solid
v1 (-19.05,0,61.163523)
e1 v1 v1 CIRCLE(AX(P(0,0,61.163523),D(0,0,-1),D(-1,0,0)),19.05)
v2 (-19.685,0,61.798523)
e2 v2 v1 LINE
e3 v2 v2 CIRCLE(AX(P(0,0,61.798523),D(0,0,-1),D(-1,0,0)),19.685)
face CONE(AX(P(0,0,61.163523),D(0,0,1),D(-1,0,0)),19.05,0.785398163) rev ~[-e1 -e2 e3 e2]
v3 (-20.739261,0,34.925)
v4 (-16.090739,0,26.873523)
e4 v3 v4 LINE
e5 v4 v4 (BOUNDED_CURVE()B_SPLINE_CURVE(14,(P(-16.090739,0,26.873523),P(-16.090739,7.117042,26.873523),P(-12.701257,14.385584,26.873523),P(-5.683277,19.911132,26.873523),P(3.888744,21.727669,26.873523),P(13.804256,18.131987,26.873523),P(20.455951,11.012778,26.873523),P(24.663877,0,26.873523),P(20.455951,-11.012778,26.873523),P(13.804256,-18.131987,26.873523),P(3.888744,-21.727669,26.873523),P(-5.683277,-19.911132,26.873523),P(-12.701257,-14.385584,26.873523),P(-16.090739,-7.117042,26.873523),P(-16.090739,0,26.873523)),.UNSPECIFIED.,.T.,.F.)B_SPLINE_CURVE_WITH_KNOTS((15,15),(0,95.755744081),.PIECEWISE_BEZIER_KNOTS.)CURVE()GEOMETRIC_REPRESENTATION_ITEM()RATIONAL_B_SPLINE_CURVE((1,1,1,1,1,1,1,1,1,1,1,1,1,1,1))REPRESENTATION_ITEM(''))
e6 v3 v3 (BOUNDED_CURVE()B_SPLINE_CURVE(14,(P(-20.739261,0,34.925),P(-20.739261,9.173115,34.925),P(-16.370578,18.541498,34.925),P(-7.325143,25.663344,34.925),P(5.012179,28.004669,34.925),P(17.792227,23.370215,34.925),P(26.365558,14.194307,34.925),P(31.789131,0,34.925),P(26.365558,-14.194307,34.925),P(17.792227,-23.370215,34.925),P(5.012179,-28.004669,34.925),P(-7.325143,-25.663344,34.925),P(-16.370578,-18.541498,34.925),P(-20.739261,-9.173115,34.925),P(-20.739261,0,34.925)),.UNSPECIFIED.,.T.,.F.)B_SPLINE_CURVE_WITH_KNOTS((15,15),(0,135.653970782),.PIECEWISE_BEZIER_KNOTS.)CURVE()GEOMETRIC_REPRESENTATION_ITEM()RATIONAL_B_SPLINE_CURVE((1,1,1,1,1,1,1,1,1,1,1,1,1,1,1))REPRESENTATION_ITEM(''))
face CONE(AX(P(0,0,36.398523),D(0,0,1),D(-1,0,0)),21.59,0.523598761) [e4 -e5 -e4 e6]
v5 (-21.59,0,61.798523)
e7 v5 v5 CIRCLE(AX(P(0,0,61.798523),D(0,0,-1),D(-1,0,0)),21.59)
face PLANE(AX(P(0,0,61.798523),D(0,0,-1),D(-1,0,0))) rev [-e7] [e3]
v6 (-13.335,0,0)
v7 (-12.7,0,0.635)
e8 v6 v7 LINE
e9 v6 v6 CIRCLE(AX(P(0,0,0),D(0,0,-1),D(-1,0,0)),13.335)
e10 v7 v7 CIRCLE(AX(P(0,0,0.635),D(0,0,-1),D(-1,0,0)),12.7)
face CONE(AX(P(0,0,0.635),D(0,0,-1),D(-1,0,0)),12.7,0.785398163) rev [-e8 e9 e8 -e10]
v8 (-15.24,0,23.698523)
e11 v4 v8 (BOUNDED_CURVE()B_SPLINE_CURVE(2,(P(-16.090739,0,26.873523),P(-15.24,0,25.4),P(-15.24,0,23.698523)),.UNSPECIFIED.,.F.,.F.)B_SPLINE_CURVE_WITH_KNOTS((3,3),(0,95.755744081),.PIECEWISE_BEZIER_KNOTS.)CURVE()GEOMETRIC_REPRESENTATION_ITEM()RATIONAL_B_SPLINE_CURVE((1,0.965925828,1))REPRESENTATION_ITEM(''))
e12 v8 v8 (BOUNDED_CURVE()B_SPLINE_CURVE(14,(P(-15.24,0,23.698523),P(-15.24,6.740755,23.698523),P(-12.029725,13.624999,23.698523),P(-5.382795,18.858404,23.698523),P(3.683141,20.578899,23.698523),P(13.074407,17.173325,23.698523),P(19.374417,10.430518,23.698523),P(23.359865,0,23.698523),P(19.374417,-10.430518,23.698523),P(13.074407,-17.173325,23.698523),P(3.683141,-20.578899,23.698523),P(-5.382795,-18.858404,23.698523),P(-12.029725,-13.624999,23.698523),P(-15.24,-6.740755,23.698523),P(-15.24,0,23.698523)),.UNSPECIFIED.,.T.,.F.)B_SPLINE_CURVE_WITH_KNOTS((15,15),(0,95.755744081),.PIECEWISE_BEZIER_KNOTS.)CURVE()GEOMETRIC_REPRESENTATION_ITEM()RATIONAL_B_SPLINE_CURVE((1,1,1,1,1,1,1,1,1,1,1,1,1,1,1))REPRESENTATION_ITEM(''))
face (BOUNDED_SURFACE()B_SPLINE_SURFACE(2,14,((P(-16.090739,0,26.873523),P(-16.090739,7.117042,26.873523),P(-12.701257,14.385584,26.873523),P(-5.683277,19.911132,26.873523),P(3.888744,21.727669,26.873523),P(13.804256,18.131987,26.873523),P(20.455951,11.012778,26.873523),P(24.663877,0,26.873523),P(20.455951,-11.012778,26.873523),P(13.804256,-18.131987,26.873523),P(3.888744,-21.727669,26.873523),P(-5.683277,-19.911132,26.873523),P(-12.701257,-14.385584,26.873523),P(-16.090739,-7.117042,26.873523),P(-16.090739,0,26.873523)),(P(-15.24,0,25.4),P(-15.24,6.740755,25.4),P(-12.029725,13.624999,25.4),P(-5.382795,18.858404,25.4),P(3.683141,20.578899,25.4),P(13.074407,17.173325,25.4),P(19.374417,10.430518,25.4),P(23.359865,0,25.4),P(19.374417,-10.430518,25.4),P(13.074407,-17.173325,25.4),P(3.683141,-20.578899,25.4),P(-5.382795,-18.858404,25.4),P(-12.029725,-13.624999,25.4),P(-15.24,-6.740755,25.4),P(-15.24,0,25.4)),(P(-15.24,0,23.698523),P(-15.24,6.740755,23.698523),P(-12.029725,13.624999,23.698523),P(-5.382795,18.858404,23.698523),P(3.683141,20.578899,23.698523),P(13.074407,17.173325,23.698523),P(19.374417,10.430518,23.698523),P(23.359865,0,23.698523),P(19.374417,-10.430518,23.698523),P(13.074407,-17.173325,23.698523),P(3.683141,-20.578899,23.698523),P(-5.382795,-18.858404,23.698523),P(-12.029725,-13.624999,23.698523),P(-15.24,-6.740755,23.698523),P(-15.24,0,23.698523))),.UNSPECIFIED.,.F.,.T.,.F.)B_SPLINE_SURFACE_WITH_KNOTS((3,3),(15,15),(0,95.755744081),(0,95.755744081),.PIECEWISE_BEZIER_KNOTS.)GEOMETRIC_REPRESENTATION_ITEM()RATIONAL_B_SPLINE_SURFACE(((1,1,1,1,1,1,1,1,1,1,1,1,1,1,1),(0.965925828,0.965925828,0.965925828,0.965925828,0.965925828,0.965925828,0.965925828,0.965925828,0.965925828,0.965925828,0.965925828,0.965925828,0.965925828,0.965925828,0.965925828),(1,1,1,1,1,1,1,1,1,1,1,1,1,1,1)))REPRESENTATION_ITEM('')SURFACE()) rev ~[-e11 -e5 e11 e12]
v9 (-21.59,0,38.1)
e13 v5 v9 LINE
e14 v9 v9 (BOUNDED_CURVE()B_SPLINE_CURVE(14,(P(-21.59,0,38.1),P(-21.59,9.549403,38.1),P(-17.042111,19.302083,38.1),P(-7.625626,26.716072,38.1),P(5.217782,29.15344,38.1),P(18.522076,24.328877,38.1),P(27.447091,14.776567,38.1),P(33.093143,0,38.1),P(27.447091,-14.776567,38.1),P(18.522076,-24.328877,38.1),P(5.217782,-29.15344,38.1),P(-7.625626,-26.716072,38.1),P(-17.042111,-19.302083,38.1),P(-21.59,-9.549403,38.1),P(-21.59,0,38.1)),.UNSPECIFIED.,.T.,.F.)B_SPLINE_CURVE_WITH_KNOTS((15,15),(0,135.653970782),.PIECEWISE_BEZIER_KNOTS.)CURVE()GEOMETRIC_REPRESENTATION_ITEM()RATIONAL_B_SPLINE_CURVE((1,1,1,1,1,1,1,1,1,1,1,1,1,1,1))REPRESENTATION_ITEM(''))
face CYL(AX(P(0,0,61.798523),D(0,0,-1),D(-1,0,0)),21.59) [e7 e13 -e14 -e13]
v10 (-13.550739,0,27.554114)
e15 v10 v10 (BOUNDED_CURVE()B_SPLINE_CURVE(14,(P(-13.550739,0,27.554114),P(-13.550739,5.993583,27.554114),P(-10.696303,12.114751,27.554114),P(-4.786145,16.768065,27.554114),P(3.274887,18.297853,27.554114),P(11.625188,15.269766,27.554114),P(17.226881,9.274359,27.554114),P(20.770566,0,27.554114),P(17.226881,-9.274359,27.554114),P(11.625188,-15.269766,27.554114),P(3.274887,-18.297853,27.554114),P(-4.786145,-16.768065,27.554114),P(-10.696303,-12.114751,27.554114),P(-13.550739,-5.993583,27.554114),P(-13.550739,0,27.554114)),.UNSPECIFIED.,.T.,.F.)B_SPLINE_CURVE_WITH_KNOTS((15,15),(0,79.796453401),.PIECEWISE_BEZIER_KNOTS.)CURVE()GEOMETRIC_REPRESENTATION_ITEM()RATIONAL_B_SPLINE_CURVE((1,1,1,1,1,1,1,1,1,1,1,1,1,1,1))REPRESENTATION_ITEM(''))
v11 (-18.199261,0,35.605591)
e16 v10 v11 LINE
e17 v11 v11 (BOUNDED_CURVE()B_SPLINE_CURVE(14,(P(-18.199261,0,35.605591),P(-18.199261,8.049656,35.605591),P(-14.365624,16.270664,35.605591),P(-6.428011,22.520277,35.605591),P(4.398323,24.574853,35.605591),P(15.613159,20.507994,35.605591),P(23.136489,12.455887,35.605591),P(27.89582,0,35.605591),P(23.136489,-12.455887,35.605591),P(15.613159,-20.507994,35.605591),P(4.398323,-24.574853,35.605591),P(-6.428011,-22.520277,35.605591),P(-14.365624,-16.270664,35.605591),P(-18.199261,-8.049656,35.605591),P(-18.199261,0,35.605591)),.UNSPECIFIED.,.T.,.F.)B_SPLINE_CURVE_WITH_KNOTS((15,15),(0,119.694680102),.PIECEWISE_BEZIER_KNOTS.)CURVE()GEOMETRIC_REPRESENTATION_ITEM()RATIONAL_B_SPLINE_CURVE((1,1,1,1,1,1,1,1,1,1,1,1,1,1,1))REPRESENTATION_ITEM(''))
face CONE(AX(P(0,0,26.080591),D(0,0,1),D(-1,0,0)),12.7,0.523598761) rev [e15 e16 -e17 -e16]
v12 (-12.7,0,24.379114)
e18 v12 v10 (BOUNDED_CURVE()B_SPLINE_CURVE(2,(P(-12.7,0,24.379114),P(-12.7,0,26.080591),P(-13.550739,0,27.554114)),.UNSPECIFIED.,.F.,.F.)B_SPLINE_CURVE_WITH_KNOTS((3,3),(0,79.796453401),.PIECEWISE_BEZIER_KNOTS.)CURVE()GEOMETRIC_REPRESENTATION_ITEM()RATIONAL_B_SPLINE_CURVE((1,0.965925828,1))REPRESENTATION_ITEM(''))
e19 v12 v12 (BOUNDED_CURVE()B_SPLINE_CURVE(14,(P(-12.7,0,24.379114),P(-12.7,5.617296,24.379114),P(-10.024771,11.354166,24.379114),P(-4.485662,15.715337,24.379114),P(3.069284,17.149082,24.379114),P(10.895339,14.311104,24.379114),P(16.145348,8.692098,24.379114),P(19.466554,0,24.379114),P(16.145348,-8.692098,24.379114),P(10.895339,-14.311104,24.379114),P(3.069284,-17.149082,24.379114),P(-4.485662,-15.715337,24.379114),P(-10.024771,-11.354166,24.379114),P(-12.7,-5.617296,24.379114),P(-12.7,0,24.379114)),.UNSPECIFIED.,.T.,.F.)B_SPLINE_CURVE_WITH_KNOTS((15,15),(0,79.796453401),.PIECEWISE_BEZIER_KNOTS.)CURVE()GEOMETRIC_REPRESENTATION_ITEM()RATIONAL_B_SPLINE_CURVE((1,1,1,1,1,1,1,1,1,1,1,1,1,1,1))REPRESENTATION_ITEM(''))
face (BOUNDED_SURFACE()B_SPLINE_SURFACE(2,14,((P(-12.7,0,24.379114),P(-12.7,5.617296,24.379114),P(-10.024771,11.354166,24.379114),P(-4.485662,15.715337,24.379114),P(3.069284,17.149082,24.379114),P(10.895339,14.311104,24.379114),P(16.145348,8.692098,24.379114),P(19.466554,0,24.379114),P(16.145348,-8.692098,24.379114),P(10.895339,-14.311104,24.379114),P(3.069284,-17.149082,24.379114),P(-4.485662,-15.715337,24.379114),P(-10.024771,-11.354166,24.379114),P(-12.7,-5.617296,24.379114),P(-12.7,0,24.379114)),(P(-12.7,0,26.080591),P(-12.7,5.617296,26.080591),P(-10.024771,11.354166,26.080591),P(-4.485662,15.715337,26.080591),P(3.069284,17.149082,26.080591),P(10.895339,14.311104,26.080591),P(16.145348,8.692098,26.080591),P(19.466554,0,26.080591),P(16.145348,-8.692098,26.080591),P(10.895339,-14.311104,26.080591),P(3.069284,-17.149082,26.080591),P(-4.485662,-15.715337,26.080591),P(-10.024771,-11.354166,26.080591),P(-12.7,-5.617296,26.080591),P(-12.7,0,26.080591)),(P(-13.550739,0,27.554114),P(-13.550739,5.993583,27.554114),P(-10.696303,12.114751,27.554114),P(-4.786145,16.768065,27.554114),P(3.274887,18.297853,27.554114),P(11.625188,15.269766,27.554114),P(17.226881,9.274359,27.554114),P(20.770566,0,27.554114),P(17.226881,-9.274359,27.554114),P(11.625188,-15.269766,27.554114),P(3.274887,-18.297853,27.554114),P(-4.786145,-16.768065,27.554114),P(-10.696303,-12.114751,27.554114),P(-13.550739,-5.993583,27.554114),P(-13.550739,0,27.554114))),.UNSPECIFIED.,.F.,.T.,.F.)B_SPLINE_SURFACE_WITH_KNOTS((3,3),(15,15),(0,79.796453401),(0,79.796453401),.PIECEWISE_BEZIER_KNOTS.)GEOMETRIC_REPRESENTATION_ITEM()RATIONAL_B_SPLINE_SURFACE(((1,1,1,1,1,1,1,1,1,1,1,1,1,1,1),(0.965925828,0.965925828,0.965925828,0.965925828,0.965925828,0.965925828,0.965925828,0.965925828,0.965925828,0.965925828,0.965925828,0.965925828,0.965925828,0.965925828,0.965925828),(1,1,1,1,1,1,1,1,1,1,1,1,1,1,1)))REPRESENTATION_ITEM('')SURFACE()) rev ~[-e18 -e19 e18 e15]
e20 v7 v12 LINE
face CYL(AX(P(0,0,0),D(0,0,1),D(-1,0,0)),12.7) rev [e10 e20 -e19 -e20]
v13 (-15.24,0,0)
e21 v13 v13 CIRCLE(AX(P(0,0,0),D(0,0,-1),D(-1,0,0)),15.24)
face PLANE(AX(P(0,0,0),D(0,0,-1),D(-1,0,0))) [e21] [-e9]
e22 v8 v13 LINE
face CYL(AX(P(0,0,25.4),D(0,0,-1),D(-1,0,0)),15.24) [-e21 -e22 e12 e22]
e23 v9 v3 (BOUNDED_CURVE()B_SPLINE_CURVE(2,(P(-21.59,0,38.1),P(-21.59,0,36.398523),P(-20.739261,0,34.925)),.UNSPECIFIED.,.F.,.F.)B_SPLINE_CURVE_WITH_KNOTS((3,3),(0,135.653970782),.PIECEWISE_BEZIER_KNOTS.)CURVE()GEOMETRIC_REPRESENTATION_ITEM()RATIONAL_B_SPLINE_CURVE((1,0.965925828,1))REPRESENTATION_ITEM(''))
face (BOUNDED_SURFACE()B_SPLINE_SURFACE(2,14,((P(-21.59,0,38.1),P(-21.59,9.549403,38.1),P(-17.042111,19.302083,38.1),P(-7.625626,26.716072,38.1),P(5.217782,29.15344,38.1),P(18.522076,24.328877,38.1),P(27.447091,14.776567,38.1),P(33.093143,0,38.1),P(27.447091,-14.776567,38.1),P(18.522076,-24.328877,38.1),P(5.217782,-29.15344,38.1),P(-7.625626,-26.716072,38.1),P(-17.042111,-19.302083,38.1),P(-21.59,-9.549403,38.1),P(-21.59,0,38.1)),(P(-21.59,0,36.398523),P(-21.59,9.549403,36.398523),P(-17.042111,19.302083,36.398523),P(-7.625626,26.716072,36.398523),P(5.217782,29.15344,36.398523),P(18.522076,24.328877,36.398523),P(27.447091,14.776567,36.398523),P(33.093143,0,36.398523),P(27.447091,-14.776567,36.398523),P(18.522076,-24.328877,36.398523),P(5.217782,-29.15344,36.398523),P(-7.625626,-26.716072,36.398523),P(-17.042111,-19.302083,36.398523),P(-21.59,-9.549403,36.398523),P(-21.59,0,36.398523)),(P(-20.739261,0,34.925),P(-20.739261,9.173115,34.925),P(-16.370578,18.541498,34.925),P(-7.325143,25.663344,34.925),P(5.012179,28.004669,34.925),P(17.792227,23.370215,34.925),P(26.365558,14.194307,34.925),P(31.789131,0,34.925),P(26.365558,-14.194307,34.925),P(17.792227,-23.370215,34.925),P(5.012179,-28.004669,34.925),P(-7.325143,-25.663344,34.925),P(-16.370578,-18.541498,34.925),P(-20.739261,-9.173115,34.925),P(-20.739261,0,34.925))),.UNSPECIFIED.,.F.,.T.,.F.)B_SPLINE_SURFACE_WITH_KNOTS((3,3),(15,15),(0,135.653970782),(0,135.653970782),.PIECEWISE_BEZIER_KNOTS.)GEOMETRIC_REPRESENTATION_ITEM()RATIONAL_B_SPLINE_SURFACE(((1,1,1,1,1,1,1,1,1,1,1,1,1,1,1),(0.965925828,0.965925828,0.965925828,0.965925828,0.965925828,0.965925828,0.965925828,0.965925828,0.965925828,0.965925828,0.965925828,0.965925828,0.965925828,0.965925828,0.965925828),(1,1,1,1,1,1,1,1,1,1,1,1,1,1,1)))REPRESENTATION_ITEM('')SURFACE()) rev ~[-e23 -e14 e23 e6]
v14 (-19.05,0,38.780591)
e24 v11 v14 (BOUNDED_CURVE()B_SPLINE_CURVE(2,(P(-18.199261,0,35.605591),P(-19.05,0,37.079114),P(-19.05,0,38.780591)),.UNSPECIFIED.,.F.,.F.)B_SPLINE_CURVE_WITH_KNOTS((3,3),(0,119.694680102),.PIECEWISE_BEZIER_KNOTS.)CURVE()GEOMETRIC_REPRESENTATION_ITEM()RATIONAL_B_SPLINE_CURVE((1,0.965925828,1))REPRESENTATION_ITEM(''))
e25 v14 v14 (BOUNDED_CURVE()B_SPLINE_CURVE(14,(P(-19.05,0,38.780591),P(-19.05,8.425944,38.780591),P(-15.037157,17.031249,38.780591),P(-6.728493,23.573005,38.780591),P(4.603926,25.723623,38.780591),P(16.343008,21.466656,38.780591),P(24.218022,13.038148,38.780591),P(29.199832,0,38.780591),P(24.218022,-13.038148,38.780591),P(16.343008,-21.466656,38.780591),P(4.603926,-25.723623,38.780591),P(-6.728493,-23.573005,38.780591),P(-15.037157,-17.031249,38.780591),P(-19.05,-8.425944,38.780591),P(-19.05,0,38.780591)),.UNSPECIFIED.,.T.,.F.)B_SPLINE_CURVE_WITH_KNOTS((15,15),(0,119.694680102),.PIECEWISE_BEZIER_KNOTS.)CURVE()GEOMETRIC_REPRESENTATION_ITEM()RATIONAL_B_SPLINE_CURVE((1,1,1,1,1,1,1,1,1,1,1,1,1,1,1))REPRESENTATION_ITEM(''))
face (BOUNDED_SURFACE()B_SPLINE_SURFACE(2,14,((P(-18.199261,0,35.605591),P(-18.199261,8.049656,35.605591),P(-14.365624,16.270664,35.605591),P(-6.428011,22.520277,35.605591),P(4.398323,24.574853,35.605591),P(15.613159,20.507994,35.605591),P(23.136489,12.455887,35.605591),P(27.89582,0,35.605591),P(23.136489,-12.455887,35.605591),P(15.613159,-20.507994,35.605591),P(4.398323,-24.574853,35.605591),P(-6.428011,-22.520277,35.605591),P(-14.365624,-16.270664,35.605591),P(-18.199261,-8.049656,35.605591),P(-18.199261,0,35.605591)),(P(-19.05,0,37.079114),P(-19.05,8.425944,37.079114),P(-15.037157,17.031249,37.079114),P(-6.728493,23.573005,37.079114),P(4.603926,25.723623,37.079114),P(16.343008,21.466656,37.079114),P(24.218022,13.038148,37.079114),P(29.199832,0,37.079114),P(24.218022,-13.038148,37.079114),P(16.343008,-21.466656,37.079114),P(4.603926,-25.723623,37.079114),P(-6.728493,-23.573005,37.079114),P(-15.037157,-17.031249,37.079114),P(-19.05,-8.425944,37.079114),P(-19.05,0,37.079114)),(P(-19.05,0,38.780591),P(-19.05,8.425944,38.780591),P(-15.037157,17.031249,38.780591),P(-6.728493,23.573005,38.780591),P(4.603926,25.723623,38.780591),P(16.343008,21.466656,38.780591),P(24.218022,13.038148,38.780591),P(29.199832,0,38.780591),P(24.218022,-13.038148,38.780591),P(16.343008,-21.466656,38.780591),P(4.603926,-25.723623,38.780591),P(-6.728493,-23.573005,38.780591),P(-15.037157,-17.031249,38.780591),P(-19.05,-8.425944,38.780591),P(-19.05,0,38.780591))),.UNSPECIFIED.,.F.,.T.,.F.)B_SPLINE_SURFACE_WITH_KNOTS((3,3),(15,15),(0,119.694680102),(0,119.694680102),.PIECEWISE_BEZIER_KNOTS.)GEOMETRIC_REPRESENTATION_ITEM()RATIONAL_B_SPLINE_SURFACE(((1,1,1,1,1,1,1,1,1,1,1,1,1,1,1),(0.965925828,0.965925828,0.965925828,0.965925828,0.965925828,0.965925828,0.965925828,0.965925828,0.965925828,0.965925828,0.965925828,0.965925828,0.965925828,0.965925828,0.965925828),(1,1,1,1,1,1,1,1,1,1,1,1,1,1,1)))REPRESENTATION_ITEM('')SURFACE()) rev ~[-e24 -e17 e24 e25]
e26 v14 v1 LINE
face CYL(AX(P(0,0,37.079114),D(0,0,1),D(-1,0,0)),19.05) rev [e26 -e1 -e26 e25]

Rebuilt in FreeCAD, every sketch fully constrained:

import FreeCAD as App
import Part
import Sketcher
from FreeCAD import Vector
Q = App.Units.Quantity


def edges_at(feature, points):
    """Names of the edges that pass closest to the given points."""
    edges = feature.Shape.Edges
    near = lambda p: min(range(len(edges)), key=lambda i: edges[i].distToShape(Part.Vertex(*p))[0])
    return sorted({f"Edge{near(p) + 1}" for p in points})

doc = App.newDocument("Part")
body = doc.addObject("PartDesign::Body", "Body")

sketch1 = body.newObject("Sketcher::SketchObject", "Sketch")
sketch1.AttachmentSupport = (doc.getObject("XZ_Plane"), [""])
sketch1.MapMode = "FlatFace"
sketch1.addGeometry(Part.LineSegment(Vector(-19.1, 61.8, 0), Vector(-21.6, 61.8, 0)), False)
sketch1.addGeometry(Part.LineSegment(Vector(-21.6, 61.8, 0), Vector(-21.6, 36.4, 0)), False)
sketch1.addGeometry(Part.LineSegment(Vector(-21.6, 36.4, 0), Vector(-15.2, 25.4, 0)), False)
sketch1.addGeometry(Part.LineSegment(Vector(-15.2, 25.4, 0), Vector(-15.2, 0, 0)), False)
sketch1.addGeometry(Part.LineSegment(Vector(-15.2, 0, 0), Vector(-12.7, 0, 0)), False)
sketch1.addGeometry(Part.LineSegment(Vector(-12.7, 0, 0), Vector(-12.7, 26.1, 0)), False)
sketch1.addGeometry(Part.LineSegment(Vector(-12.7, 26.1, 0), Vector(-19.1, 37.1, 0)), False)
sketch1.addGeometry(Part.LineSegment(Vector(-19.1, 37.1, 0), Vector(-19.1, 61.8, 0)), False)
sketch1.addConstraint(Sketcher.Constraint("Coincident", 0, 2, 1, 1))
sketch1.addConstraint(Sketcher.Constraint("Coincident", 1, 2, 2, 1))
sketch1.addConstraint(Sketcher.Constraint("Coincident", 2, 2, 3, 1))
sketch1.addConstraint(Sketcher.Constraint("Coincident", 3, 2, 4, 1))
sketch1.addConstraint(Sketcher.Constraint("Coincident", 4, 2, 5, 1))
sketch1.addConstraint(Sketcher.Constraint("Coincident", 5, 2, 6, 1))
sketch1.addConstraint(Sketcher.Constraint("Coincident", 6, 2, 7, 1))
sketch1.addConstraint(Sketcher.Constraint("Coincident", 7, 2, 0, 1))
sketch1.addConstraint(Sketcher.Constraint("Horizontal", 0))
sketch1.addConstraint(Sketcher.Constraint("Vertical", 1))
sketch1.addConstraint(Sketcher.Constraint("Vertical", 3))
sketch1.addConstraint(Sketcher.Constraint("Horizontal", 4))
sketch1.addConstraint(Sketcher.Constraint("Vertical", 5))
sketch1.addConstraint(Sketcher.Constraint("Vertical", 7))
sketch1.addConstraint(Sketcher.Constraint("PointOnObject", 3, 2, -1))
sketch1.addConstraint(Sketcher.Constraint("Parallel", 2, 6))
sketch1.addConstraint(Sketcher.Constraint("Equal", 0, 4))
sketch1.addConstraint(Sketcher.Constraint("Equal", 1, 3))
sketch1.addConstraint(Sketcher.Constraint("DistanceY", 1, 2, 1, 1, Q("1 in")))
sketch1.addConstraint(Sketcher.Constraint("DistanceX", 0, 2, 0, 1, Q("0.1 in")))
sketch1.addConstraint(Sketcher.Constraint("Angle", 2, Q("-60.000001 deg")))
sketch1.addConstraint(Sketcher.Constraint("Distance", 2, Q("0.5 in")))
sketch1.addConstraint(Sketcher.Constraint("DistanceX", 2, 2, -1, 1, Q("0.6 in")))
sketch1.addConstraint(Sketcher.Constraint("DistanceY", 5, 1, 5, 2, Q("26.080591 mm")))
revolution = body.newObject("PartDesign::Revolution", "Revolution")
revolution.Profile = sketch1
revolution.ReferenceAxis = (sketch1, ["V_Axis"])
revolution.Angle = 360
doc.recompute()

fillet = body.newObject("PartDesign::Fillet", "Fillet")
fillet.Base = (revolution, edges_at(revolution, [
    (21.59, 0, 36.399),
    (15.24, 0, 25.4),
    (19.05, 0, 37.079),
    (12.7, 0, 26.081),
]))
fillet.Radius = Q("0.25 in")
doc.recompute()

chamfer = body.newObject("PartDesign::Chamfer", "Chamfer")
chamfer.Base = (fillet, edges_at(fillet, [(12.7, 0, 0), (19.05, 0, 61.799)]))
chamfer.Size = Q("0.025 in")

doc.recompute()
